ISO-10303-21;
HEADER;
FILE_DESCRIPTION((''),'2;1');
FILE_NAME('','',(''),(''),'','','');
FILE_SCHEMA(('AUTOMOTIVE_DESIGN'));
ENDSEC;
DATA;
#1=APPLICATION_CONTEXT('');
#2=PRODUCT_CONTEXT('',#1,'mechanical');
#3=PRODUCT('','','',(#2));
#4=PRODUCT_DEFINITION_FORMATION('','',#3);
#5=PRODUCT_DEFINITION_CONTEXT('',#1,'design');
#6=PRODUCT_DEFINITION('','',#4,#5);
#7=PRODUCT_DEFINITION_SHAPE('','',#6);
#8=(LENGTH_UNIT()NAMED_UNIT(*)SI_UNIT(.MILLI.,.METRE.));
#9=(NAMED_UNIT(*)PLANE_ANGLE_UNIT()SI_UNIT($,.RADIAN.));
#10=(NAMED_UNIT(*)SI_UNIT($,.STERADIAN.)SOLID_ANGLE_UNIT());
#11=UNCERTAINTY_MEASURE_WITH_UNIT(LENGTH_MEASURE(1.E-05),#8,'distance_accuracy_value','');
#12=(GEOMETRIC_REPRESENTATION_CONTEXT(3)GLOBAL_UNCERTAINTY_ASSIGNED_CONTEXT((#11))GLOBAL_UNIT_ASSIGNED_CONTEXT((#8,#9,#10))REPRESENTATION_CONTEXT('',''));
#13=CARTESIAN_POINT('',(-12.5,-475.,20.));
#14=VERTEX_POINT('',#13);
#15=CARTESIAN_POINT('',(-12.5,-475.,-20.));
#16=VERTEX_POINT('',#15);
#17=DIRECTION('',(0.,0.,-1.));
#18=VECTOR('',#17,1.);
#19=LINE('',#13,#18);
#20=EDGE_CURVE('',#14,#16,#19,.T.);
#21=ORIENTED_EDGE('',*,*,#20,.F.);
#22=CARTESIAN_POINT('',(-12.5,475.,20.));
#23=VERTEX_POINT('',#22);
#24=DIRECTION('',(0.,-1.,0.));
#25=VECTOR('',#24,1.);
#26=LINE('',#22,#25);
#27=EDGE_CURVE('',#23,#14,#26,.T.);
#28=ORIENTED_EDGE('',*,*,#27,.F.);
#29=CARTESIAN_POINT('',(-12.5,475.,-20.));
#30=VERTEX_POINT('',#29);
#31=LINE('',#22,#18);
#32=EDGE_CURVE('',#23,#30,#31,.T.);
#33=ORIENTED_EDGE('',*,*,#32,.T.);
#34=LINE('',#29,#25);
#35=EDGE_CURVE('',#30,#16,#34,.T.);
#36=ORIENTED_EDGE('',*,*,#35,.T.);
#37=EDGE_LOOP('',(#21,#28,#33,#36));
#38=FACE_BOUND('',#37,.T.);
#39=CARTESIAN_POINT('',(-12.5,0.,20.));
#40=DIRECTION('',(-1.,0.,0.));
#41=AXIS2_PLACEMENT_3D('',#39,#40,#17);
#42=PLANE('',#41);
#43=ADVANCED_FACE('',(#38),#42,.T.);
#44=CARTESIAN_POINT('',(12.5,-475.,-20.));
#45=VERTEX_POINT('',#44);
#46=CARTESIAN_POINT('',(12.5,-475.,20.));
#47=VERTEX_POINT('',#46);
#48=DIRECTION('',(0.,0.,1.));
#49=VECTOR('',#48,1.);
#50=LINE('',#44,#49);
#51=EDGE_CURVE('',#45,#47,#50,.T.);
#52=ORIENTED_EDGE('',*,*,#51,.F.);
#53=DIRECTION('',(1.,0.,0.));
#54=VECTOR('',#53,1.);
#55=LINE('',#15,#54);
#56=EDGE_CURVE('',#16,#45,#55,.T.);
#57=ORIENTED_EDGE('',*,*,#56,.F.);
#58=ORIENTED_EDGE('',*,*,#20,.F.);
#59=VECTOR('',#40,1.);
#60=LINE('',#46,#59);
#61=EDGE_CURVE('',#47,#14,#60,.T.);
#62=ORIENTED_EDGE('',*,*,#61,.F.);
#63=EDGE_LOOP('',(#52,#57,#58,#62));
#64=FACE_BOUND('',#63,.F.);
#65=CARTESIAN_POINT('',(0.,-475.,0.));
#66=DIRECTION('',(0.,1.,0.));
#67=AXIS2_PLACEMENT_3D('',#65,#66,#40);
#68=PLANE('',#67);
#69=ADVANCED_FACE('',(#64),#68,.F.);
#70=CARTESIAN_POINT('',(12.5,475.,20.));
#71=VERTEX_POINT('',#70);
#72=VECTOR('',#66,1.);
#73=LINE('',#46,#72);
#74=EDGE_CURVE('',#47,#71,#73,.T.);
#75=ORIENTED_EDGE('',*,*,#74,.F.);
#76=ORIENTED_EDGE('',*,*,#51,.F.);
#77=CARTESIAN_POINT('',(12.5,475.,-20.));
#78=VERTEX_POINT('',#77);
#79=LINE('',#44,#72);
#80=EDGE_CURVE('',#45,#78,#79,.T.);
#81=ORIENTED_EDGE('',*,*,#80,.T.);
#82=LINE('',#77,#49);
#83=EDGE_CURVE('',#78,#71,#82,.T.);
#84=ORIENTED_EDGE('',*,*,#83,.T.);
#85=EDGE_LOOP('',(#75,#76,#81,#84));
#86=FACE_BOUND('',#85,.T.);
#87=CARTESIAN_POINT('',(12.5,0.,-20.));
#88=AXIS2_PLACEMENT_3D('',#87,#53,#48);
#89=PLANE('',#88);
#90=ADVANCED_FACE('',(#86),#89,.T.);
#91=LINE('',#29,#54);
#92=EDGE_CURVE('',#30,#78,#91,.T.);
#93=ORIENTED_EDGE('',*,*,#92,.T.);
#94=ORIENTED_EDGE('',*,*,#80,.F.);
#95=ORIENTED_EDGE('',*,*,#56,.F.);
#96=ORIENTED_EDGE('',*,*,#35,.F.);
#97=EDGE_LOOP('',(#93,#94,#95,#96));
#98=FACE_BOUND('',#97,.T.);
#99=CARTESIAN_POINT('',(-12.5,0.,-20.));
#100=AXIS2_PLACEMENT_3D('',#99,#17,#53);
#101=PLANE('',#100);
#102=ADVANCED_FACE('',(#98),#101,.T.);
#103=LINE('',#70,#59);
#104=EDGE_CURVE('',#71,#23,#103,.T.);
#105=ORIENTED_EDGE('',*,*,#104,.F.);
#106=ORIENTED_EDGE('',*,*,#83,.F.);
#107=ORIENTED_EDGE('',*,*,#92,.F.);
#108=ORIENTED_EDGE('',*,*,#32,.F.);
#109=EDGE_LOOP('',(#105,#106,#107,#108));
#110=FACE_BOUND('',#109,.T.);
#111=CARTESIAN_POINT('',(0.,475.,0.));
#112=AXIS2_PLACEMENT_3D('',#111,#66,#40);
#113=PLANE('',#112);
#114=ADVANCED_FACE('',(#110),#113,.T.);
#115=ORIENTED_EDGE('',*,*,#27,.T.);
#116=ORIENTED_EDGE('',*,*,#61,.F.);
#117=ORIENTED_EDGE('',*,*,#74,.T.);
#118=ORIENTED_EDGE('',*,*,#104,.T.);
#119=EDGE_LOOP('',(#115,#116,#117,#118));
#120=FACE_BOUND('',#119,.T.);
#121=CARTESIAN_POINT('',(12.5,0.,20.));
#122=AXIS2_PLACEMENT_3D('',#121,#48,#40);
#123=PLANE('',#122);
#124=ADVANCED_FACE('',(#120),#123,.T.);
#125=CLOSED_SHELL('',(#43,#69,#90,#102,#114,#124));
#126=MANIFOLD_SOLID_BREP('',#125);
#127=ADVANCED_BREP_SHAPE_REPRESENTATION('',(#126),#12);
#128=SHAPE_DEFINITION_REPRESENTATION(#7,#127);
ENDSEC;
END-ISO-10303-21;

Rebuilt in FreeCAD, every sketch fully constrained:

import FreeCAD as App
import Part
import Sketcher
from FreeCAD import Vector
Q = App.Units.Quantity


def add_polygon(sketch, points):
    """Adds a closed chain of lines whose ends are joined by coincident constraints."""
    first, n = sketch.GeometryCount, len(points)
    for a, b in zip(points, points[1:] + points[:1]):
        sketch.addGeometry(Part.LineSegment(App.Vector(*a, 0), App.Vector(*b, 0)), False)
    for i in range(n):
        sketch.addConstraint(Sketcher.Constraint("Coincident", first + i, 2, first + (i + 1) % n, 1))

doc = App.newDocument("Part")
body = doc.addObject("PartDesign::Body", "Body")

# Sketch on XZ plane
sketch1 = doc.addObject("Sketcher::SketchObject", "Sketch")
body.addObject(sketch1)
sketch1.AttachmentSupport = (doc.XZ_Plane, [""])
sketch1.MapMode = "FlatFace"
add_polygon(sketch1, [(-12.5, 20), (12.5, 20), (12.5, -20), (-12.5, -20)])  # lines 0-3
sketch1.addConstraint(Sketcher.Constraint("Horizontal", 0))
sketch1.addConstraint(Sketcher.Constraint("Vertical", 1))
sketch1.addConstraint(Sketcher.Constraint("Horizontal", 2))
sketch1.addConstraint(Sketcher.Constraint("Vertical", 3))
sketch1.addConstraint(Sketcher.Constraint("Symmetric", 0, 2, 2, 2, -1, 1))
sketch1.addConstraint(Sketcher.Constraint("DistanceX", 0, 1, 0, 2, Q("25 mm")))
sketch1.addConstraint(Sketcher.Constraint("DistanceY", 1, 2, 1, 1, Q("40 mm")))
pad1 = doc.addObject("PartDesign::Pad", "Pad")
body.addObject(pad1)
pad1.Profile = sketch1
pad1.Length = 950
pad1.Midplane = True

doc.recompute()
